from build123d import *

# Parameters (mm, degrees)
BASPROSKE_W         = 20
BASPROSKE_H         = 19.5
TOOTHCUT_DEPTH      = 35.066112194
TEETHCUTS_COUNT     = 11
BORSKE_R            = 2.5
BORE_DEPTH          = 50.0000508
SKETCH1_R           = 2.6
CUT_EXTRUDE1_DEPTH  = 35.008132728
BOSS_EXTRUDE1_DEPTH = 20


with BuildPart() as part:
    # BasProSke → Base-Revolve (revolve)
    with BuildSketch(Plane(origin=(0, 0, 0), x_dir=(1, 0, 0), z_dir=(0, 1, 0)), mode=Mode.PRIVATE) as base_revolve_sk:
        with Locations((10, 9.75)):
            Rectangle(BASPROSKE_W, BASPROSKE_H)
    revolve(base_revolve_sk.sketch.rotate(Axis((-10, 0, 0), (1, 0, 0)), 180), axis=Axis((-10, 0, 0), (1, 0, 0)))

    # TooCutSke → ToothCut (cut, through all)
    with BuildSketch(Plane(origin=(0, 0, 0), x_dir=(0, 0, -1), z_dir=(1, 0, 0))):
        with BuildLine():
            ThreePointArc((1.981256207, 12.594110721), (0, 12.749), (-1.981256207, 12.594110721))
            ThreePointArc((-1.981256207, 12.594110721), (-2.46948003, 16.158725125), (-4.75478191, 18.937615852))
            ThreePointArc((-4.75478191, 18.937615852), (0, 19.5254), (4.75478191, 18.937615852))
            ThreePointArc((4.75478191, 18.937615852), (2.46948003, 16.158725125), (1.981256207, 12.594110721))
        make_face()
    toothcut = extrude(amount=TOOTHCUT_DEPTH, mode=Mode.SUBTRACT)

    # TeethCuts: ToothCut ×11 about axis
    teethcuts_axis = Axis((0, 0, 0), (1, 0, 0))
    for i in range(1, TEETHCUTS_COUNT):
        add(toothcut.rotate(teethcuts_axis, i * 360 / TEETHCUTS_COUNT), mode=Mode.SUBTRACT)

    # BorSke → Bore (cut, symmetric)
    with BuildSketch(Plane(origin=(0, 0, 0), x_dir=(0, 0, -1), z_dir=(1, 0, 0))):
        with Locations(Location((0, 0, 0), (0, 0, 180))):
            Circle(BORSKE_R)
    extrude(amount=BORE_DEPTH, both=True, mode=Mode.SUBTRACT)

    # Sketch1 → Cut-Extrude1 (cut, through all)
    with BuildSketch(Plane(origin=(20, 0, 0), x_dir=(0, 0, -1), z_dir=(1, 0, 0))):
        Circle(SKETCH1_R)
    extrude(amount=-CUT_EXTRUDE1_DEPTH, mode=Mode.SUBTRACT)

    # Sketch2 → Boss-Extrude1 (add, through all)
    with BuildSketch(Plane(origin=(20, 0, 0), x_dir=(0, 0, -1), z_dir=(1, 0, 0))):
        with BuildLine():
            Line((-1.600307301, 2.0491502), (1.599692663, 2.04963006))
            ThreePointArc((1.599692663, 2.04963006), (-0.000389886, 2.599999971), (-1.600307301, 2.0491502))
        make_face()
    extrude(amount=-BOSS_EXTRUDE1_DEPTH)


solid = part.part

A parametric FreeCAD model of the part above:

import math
import FreeCAD as App
import Part
import Sketcher
from FreeCAD import Vector
Q = App.Units.Quantity


def add_polygon(sketch, points):
    """Adds a closed chain of lines whose ends are joined by coincident constraints."""
    first, n = sketch.GeometryCount, len(points)
    for a, b in zip(points, points[1:] + points[:1]):
        sketch.addGeometry(Part.LineSegment(App.Vector(*a, 0), App.Vector(*b, 0)), False)
    for i in range(n):
        sketch.addConstraint(Sketcher.Constraint("Coincident", first + i, 2, first + (i + 1) % n, 1))

doc = App.newDocument("Part")
body = doc.addObject("PartDesign::Body", "Body")

# Sketch on XZ plane
sketch1 = doc.addObject("Sketcher::SketchObject", "Sketch")
body.addObject(sketch1)
sketch1.AttachmentSupport = (doc.XZ_Plane, [""])
sketch1.MapMode = "FlatFace"
add_polygon(sketch1, [(0, -20), (0, 0), (20, 0), (20, -20)])  # lines 0-3
sketch1.addConstraint(Sketcher.Constraint("Vertical", 0))
sketch1.addConstraint(Sketcher.Constraint("Horizontal", 1))
sketch1.addConstraint(Sketcher.Constraint("Vertical", 2))
sketch1.addConstraint(Sketcher.Constraint("Horizontal", 3))
sketch1.addConstraint(Sketcher.Constraint("Coincident", 0, 2, -1, 1))
sketch1.addConstraint(Sketcher.Constraint("DistanceX", 1, 1, 1, 2, Q("20 mm")))
sketch1.addConstraint(Sketcher.Constraint("DistanceY", 0, 1, 0, 2, Q("19.5 mm")))
revolution = doc.addObject("PartDesign::Revolution", "Revolution")
body.addObject(revolution)
revolution.Profile = sketch1
revolution.ReferenceAxis = (sketch1, ["H_Axis"])
revolution.Angle = 360

# Sketch on YZ plane
sketch2 = doc.addObject("Sketcher::SketchObject", "Sketch001")
body.addObject(sketch2)
sketch2.AttachmentSupport = (doc.YZ_Plane, [""])
sketch2.MapMode = "FlatFace"
sketch2.addGeometry(Part.ArcOfCircle(Part.Circle(Vector(0, 0, 0), Vector(0, 0, 1), 12.7), math.radians(-8.94), math.radians(8.94)), False)
sketch2.addGeometry(Part.ArcOfCircle(Part.Circle(Vector(13.5, -8.5, 0), Vector(0, 0, 1), 6.6), math.radians(35), math.radians(98)), False)
sketch2.addGeometry(Part.ArcOfCircle(Part.Circle(Vector(0, 0, 0), Vector(0, 0, 1), 19.5), math.radians(-14), math.radians(14)), False)
sketch2.addGeometry(Part.ArcOfCircle(Part.Circle(Vector(13.5, 8.5, 0), Vector(0, 0, 1), 6.6), math.radians(-98), math.radians(-35)), False)
sketch2.addConstraint(Sketcher.Constraint("Coincident", 0, 1, 1, 2))
sketch2.addConstraint(Sketcher.Constraint("Coincident", 1, 1, 2, 1))
sketch2.addConstraint(Sketcher.Constraint("Coincident", 2, 2, 3, 2))
sketch2.addConstraint(Sketcher.Constraint("Coincident", 3, 1, 0, 2))
sketch2.addConstraint(Sketcher.Constraint("Coincident", 0, 3, -1, 1))
sketch2.addConstraint(Sketcher.Constraint("Coincident", 2, 3, -1, 1))
sketch2.addConstraint(Sketcher.Constraint("Equal", 1, 3))
sketch2.addConstraint(Sketcher.Constraint("Symmetric", 1, 3, 3, 3, -1))
sketch2.addConstraint(Sketcher.Constraint("Radius", 1, Q("6.6 mm")))
sketch2.addConstraint(Sketcher.Constraint("Radius", 0, Q("12.749 mm")))
sketch2.addConstraint(Sketcher.Constraint("Radius", 2, Q("19.5254 mm")))
sketch2.addConstraint(Sketcher.Constraint("DistanceX", -1, 1, 0, 1, Q("12.594111 mm")))
sketch2.addConstraint(Sketcher.Constraint("DistanceY", 1, 1, -1, 1, Q("4.754782 mm")))
pocket1 = doc.addObject("PartDesign::Pocket", "Pocket")
body.addObject(pocket1)
pocket1.Profile = sketch2
pocket1.Type = "ThroughAll"
pocket1.Reversed = True
doc.recompute()

polarpattern = doc.addObject("PartDesign::PolarPattern", "PolarPattern")
body.addObject(polarpattern)
polarpattern.Originals = [pocket1]
polarpattern.Axis = (doc.X_Axis, [""])
polarpattern.Angle = 360
polarpattern.Occurrences = 11
body.Tip = polarpattern

# Sketch on YZ plane
sketch3 = doc.addObject("Sketcher::SketchObject", "Sketch002")
body.addObject(sketch3)
sketch3.AttachmentSupport = (doc.YZ_Plane, [""])
sketch3.MapMode = "FlatFace"
sketch3.addGeometry(Part.Circle(Vector(0, 0, 0), Vector(0, 0, 1), 2.5), False)
sketch3.addConstraint(Sketcher.Constraint("Coincident", 0, 3, -1, 1))
sketch3.addConstraint(Sketcher.Constraint("Diameter", 0, Q("5 mm")))
pocket2 = doc.addObject("PartDesign::Pocket", "Pocket001")
body.addObject(pocket2)
pocket2.Profile = sketch3
pocket2.Length = 100.000102
pocket2.Midplane = True

# Sketch on YZ plane
sketch4 = doc.addObject("Sketcher::SketchObject", "Sketch003")
body.addObject(sketch4)
sketch4.AttachmentSupport = (doc.YZ_Plane, [""])
sketch4.MapMode = "FlatFace"
sketch4.AttachmentOffset = App.Placement(Vector(0, 0, 20), App.Rotation())
sketch4.addGeometry(Part.Circle(Vector(0, 0, 0), Vector(0, 0, 1), 2.6), False)
sketch4.addConstraint(Sketcher.Constraint("Coincident", 0, 3, -1, 1))
sketch4.addConstraint(Sketcher.Constraint("Diameter", 0, Q("5.2 mm")))
pocket3 = doc.addObject("PartDesign::Pocket", "Pocket002")
body.addObject(pocket3)
pocket3.Profile = sketch4
pocket3.Type = "ThroughAll"

# Sketch on YZ plane
sketch5 = doc.addObject("Sketcher::SketchObject", "Sketch004")
body.addObject(sketch5)
sketch5.AttachmentSupport = (doc.YZ_Plane, [""])
sketch5.MapMode = "FlatFace"
sketch5.AttachmentOffset = App.Placement(Vector(0, 0, 20), App.Rotation())
sketch5.addGeometry(Part.LineSegment(Vector(2, 1.6, 0), Vector(2, -1.6, 0)), False)
sketch5.addGeometry(Part.ArcOfCircle(Part.Circle(Vector(0, 0, 0), Vector(0, 0, 1), 2.6), math.radians(-38), math.radians(38)), False)
sketch5.addConstraint(Sketcher.Constraint("Coincident", 0, 1, 1, 2))
sketch5.addConstraint(Sketcher.Constraint("Coincident", 1, 1, 0, 2))
sketch5.addConstraint(Sketcher.Constraint("Coincident", 1, 3, -1, 1))
sketch5.addConstraint(Sketcher.Constraint("Radius", 1, Q("2.6 mm")))
sketch5.addConstraint(Sketcher.Constraint("Distance", 0, Q("3.2 mm")))
sketch5.addConstraint(Sketcher.Constraint("DistanceX", -1, 1, 0, 1, Q("2.04915 mm")))
pad1 = doc.addObject("PartDesign::Pad", "Pad")
body.addObject(pad1)
pad1.Profile = sketch5
pad1.Length = 20
pad1.Reversed = True

doc.recompute()
